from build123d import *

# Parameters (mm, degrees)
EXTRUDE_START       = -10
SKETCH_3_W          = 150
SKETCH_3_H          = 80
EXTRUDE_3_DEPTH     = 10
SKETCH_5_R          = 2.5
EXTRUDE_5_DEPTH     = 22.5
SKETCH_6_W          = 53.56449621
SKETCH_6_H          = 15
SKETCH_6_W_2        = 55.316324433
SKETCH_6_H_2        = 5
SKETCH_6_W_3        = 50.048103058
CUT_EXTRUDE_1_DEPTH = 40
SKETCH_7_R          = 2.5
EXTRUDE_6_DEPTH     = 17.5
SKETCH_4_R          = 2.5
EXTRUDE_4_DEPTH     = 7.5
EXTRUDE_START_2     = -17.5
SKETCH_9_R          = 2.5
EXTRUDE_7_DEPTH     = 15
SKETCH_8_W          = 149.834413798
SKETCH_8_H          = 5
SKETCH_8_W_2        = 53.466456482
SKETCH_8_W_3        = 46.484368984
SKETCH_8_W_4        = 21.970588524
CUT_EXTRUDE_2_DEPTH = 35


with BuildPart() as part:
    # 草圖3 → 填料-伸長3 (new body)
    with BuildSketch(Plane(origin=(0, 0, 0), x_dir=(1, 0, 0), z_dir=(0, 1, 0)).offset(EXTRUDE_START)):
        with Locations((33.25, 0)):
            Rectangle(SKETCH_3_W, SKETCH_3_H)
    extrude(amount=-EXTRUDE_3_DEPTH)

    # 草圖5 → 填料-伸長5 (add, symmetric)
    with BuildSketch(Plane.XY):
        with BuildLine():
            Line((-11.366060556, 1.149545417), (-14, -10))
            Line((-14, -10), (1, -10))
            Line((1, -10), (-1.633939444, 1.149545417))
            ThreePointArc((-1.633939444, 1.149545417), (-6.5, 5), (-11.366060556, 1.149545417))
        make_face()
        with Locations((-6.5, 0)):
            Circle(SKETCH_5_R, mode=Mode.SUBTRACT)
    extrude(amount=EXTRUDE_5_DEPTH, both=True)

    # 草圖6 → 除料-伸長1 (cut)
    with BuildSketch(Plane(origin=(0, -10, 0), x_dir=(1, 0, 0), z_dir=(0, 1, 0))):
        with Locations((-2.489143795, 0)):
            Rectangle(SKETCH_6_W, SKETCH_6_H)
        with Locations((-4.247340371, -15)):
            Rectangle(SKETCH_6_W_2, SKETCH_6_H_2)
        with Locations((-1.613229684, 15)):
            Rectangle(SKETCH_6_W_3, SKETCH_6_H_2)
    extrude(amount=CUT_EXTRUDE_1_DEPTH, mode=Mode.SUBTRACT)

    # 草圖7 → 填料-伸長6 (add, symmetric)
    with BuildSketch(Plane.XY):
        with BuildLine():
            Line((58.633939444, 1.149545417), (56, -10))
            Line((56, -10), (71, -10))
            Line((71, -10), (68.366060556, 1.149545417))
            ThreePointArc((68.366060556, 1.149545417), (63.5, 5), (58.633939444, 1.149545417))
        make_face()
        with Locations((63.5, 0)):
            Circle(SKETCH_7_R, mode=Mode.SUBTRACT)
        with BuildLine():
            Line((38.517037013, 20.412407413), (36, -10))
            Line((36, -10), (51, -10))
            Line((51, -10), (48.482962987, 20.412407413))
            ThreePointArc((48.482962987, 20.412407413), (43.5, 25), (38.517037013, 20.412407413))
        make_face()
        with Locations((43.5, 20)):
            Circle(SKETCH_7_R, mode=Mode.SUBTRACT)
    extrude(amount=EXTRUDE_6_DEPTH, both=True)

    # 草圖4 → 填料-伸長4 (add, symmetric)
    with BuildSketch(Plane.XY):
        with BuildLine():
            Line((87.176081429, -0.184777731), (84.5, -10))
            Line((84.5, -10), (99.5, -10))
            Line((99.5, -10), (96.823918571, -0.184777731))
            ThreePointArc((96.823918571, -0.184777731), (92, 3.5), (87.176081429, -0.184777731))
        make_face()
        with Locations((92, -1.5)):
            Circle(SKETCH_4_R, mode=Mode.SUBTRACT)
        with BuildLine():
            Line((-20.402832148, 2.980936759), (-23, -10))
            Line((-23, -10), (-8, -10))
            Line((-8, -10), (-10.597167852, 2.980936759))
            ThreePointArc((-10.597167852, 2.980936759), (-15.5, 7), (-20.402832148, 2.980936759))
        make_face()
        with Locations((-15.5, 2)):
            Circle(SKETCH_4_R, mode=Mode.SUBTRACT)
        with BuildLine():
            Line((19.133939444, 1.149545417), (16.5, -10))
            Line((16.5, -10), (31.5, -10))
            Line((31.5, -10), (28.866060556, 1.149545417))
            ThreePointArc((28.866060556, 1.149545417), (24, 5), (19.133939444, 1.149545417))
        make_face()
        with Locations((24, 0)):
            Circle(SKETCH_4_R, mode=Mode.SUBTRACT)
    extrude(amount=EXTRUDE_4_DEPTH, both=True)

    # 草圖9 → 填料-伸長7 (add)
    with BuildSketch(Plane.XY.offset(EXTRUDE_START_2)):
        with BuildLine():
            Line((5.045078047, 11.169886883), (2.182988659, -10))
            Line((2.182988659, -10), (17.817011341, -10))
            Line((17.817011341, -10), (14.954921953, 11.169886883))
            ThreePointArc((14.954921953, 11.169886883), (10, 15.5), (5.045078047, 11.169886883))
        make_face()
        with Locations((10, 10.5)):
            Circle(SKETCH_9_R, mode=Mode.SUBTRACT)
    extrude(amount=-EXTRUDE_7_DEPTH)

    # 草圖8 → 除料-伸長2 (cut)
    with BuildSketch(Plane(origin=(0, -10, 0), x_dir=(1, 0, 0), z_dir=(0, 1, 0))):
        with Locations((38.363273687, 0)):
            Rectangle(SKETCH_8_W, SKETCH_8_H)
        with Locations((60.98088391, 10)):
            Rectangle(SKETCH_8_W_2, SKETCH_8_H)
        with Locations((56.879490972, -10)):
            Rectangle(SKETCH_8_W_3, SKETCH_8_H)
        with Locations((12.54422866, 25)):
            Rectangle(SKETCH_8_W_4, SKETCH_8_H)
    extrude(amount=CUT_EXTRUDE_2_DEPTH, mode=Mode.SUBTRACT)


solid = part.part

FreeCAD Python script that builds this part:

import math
import FreeCAD as App
import Part
import Sketcher
from FreeCAD import Vector
Q = App.Units.Quantity


def add_polygon(sketch, points):
    """Adds a closed chain of lines whose ends are joined by coincident constraints."""
    first, n = sketch.GeometryCount, len(points)
    for a, b in zip(points, points[1:] + points[:1]):
        sketch.addGeometry(Part.LineSegment(App.Vector(*a, 0), App.Vector(*b, 0)), False)
    for i in range(n):
        sketch.addConstraint(Sketcher.Constraint("Coincident", first + i, 2, first + (i + 1) % n, 1))

doc = App.newDocument("Part")
body = doc.addObject("PartDesign::Body", "Body")

# Sketch on XZ plane
sketch1 = body.newObject("Sketcher::SketchObject", "Sketch")
sketch1.AttachmentSupport = (doc.getObject("XZ_Plane"), [""])
sketch1.MapMode = "FlatFace"
sketch1.AttachmentOffset = App.Placement(Vector(0, 0, 10), App.Rotation())
add_polygon(sketch1, [(-42, -40), (-42, 40), (108, 40), (108, -40)])  # lines 0-3
sketch1.addConstraint([
    Sketcher.Constraint("Vertical", 0),
    Sketcher.Constraint("Horizontal", 1),
    Sketcher.Constraint("Vertical", 2),
    Sketcher.Constraint("Horizontal", 3),
    Sketcher.Constraint("DistanceX", 1, 1, 1, 2, Q("150 mm")),
    Sketcher.Constraint("DistanceY", 0, 1, 0, 2, Q("80 mm")),
    Sketcher.Constraint("DistanceY", -1, 1, 0, 2, Q("40 mm")),
    Sketcher.Constraint("DistanceX", 0, 2, -1, 1, Q("41.75 mm")),
])
pad1 = body.newObject("PartDesign::Pad", "Pad")
pad1.Profile = sketch1
pad1.Length = 10

# Sketch on XY plane
sketch2 = body.newObject("Sketcher::SketchObject", "Sketch001")
sketch2.AttachmentSupport = (doc.getObject("XY_Plane"), [""])
sketch2.MapMode = "FlatFace"
sketch2.addGeometry([
    Part.LineSegment(Vector(-11.4, 1.1, 0), Vector(-14, -10, 0)),  # 0
    Part.LineSegment(Vector(-14, -10, 0), Vector(1, -10, 0)),  # 1
    Part.LineSegment(Vector(1, -10, 0), Vector(-1.6, 1.1, 0)),  # 2
    Part.ArcOfCircle(Part.Circle(Vector(-6.5, 0, 0), Vector(0, 0, 1), 5), math.radians(13), math.radians(167)),  # 3
    Part.Circle(Vector(-6.5, 0, 0), Vector(0, 0, 1), 2.5),  # 4
], False)
sketch2.addConstraint([
    Sketcher.Constraint("Coincident", 0, 2, 1, 1),
    Sketcher.Constraint("Coincident", 1, 2, 2, 1),
    Sketcher.Constraint("Tangent", 2, 2, 3, 1),
    Sketcher.Constraint("Tangent", 3, 2, 0, 1),
    Sketcher.Constraint("Horizontal", 1),
    Sketcher.Constraint("Coincident", 4, 3, 3, 3),
    Sketcher.Constraint("PointOnObject", 3, 3, -1),
    Sketcher.Constraint("Horizontal", 2, 2, 3, 2),
    Sketcher.Constraint("Diameter", 4, Q("5 mm")),
    Sketcher.Constraint("Radius", 3, Q("5 mm")),
    Sketcher.Constraint("DistanceX", 1, 1, 1, 2, Q("15 mm")),
    Sketcher.Constraint("DistanceX", 0, 2, -1, 1, Q("14 mm")),
    Sketcher.Constraint("DistanceY", 0, 2, -1, 1, Q("10 mm")),
])
pad2 = body.newObject("PartDesign::Pad", "Pad001")
pad2.Profile = sketch2
pad2.Length = 45
pad2.Midplane = True

# Sketch on XZ plane
sketch3 = body.newObject("Sketcher::SketchObject", "Sketch002")
sketch3.AttachmentSupport = (doc.getObject("XZ_Plane"), [""])
sketch3.MapMode = "FlatFace"
sketch3.AttachmentOffset = App.Placement(Vector(0, 0, 10), App.Rotation())
add_polygon(sketch3, [(-29, -8), (-29, 8), (24, 8), (24, -8)])  # lines 0-3
add_polygon(sketch3, [(-32, 12), (-32, 18), (23, 18), (23, 12)])  # lines 4-7
add_polygon(sketch3, [(-27, -18), (-27, -12), (23, -12), (23, -18)])  # lines 8-11
sketch3.addConstraint([
    Sketcher.Constraint("Vertical", 0),
    Sketcher.Constraint("Horizontal", 1),
    Sketcher.Constraint("Vertical", 2),
    Sketcher.Constraint("Horizontal", 3),
    Sketcher.Constraint("Vertical", 4),
    Sketcher.Constraint("Horizontal", 5),
    Sketcher.Constraint("Vertical", 6),
    Sketcher.Constraint("Horizontal", 7),
    Sketcher.Constraint("Vertical", 8),
    Sketcher.Constraint("Horizontal", 9),
    Sketcher.Constraint("Vertical", 10),
    Sketcher.Constraint("Horizontal", 11),
    Sketcher.Constraint("Symmetric", 6, 2, 9, 2, -1),
    Sketcher.Constraint("Equal", 6, 8),
    Sketcher.Constraint("DistanceY", 0, 1, 0, 2, Q("15 mm")),
    Sketcher.Constraint("DistanceY", 4, 1, 4, 2, Q("5 mm")),
    Sketcher.Constraint("DistanceY", 0, 2, 4, 2, Q("10 mm")),
    Sketcher.Constraint("DistanceY", 8, 2, 3, 2, Q("5 mm")),
    Sketcher.Constraint("DistanceX", 1, 1, 1, 2, Q("53.564496 mm")),
    Sketcher.Constraint("DistanceX", 5, 1, 5, 2, Q("55.316324 mm")),
    Sketcher.Constraint("DistanceX", 9, 1, 9, 2, Q("50.048103 mm")),
    Sketcher.Constraint("DistanceX", 0, 2, -1, 1, Q("29.271392 mm")),
    Sketcher.Constraint("DistanceX", -1, 1, 5, 2, Q("23.410822 mm")),
])
pocket1 = body.newObject("PartDesign::Pocket", "Pocket")
pocket1.Profile = sketch3
pocket1.Length = 40

# Sketch on XY plane
sketch4 = body.newObject("Sketcher::SketchObject", "Sketch003")
sketch4.AttachmentSupport = (doc.getObject("XY_Plane"), [""])
sketch4.MapMode = "FlatFace"
sketch4.addGeometry([
    Part.LineSegment(Vector(58.6, 1.1, 0), Vector(56, -10, 0)),  # 0
    Part.LineSegment(Vector(56, -10, 0), Vector(71, -10, 0)),  # 1
    Part.LineSegment(Vector(71, -10, 0), Vector(68.4, 1.1, 0)),  # 2
    Part.ArcOfCircle(Part.Circle(Vector(63.5, 0, 0), Vector(0, 0, 1), 5), math.radians(13), math.radians(167)),  # 3
    Part.Circle(Vector(63.5, 0, 0), Vector(0, 0, 1), 2.5),  # 4
    Part.LineSegment(Vector(38.5, 20.4, 0), Vector(36, -10, 0)),  # 5
    Part.LineSegment(Vector(36, -10, 0), Vector(51, -10, 0)),  # 6
    Part.LineSegment(Vector(51, -10, 0), Vector(48.5, 20.4, 0)),  # 7
    Part.ArcOfCircle(Part.Circle(Vector(43.5, 20, 0), Vector(0, 0, 1), 5), math.radians(5), math.radians(175)),  # 8
    Part.Circle(Vector(43.5, 20, 0), Vector(0, 0, 1), 2.5),  # 9
], False)
sketch4.addConstraint([
    Sketcher.Constraint("Coincident", 0, 2, 1, 1),
    Sketcher.Constraint("Coincident", 1, 2, 2, 1),
    Sketcher.Constraint("Tangent", 2, 2, 3, 1),
    Sketcher.Constraint("Tangent", 3, 2, 0, 1),
    Sketcher.Constraint("Coincident", 5, 2, 6, 1),
    Sketcher.Constraint("Coincident", 6, 2, 7, 1),
    Sketcher.Constraint("Tangent", 7, 2, 8, 1),
    Sketcher.Constraint("Tangent", 8, 2, 5, 1),
    Sketcher.Constraint("Horizontal", 1),
    Sketcher.Constraint("Horizontal", 6),
    Sketcher.Constraint("Coincident", 4, 3, 3, 3),
    Sketcher.Constraint("Coincident", 9, 3, 8, 3),
    Sketcher.Constraint("Equal", 3, 8),
    Sketcher.Constraint("Equal", 4, 9),
    Sketcher.Constraint("PointOnObject", 3, 3, -1),
    Sketcher.Constraint("Horizontal", 2, 2, 3, 2),
    Sketcher.Constraint("Horizontal", 1, 2, 5, 2),
    Sketcher.Constraint("Horizontal", 7, 2, 8, 2),
    Sketcher.Constraint("Equal", 1, 6),
    Sketcher.Constraint("Diameter", 4, Q("5 mm")),
    Sketcher.Constraint("Radius", 3, Q("5 mm")),
    Sketcher.Constraint("DistanceX", 1, 1, 1, 2, Q("15 mm")),
    Sketcher.Constraint("DistanceY", -1, 1, 8, 3, Q("20 mm")),
    Sketcher.Constraint("DistanceX", -1, 1, 0, 2, Q("56 mm")),
    Sketcher.Constraint("DistanceY", 0, 2, -1, 1, Q("10 mm")),
    Sketcher.Constraint("DistanceX", -1, 1, 5, 2, Q("36 mm")),
])
pad3 = body.newObject("PartDesign::Pad", "Pad002")
pad3.Profile = sketch4
pad3.Length = 35
pad3.Midplane = True

# Sketch on XY plane
sketch5 = body.newObject("Sketcher::SketchObject", "Sketch004")
sketch5.AttachmentSupport = (doc.getObject("XY_Plane"), [""])
sketch5.MapMode = "FlatFace"
sketch5.addGeometry([
    Part.LineSegment(Vector(87.2, -0.2, 0), Vector(84.5, -10, 0)),  # 0
    Part.LineSegment(Vector(84.5, -10, 0), Vector(99.5, -10, 0)),  # 1
    Part.LineSegment(Vector(99.5, -10, 0), Vector(96.8, -0.2, 0)),  # 2
    Part.ArcOfCircle(Part.Circle(Vector(92, -1.5, 0), Vector(0, 0, 1), 5), math.radians(15), math.radians(165)),  # 3
    Part.Circle(Vector(92, -1.5, 0), Vector(0, 0, 1), 2.5),  # 4
    Part.LineSegment(Vector(-20.4, 3, 0), Vector(-23, -10, 0)),  # 5
    Part.LineSegment(Vector(-23, -10, 0), Vector(-8, -10, 0)),  # 6
    Part.LineSegment(Vector(-8, -10, 0), Vector(-10.6, 3, 0)),  # 7
    Part.ArcOfCircle(Part.Circle(Vector(-15.5, 2, 0), Vector(0, 0, 1), 5), math.radians(11), math.radians(169)),  # 8
    Part.Circle(Vector(-15.5, 2, 0), Vector(0, 0, 1), 2.5),  # 9
    Part.LineSegment(Vector(19.1, 1.1, 0), Vector(16.5, -10, 0)),  # 10
    Part.LineSegment(Vector(16.5, -10, 0), Vector(31.5, -10, 0)),  # 11
    Part.LineSegment(Vector(31.5, -10, 0), Vector(28.9, 1.1, 0)),  # 12
    Part.ArcOfCircle(Part.Circle(Vector(24, 0, 0), Vector(0, 0, 1), 5), math.radians(13), math.radians(167)),  # 13
    Part.Circle(Vector(24, 0, 0), Vector(0, 0, 1), 2.5),  # 14
], False)
sketch5.addConstraint([
    Sketcher.Constraint("Coincident", 0, 2, 1, 1),
    Sketcher.Constraint("Coincident", 1, 2, 2, 1),
    Sketcher.Constraint("Tangent", 2, 2, 3, 1),
    Sketcher.Constraint("Tangent", 3, 2, 0, 1),
    Sketcher.Constraint("Coincident", 5, 2, 6, 1),
    Sketcher.Constraint("Coincident", 6, 2, 7, 1),
    Sketcher.Constraint("Tangent", 7, 2, 8, 1),
    Sketcher.Constraint("Tangent", 8, 2, 5, 1),
    Sketcher.Constraint("Coincident", 10, 2, 11, 1),
    Sketcher.Constraint("Coincident", 11, 2, 12, 1),
    Sketcher.Constraint("Tangent", 12, 2, 13, 1),
    Sketcher.Constraint("Tangent", 13, 2, 10, 1),
    Sketcher.Constraint("Horizontal", 1),
    Sketcher.Constraint("Horizontal", 6),
    Sketcher.Constraint("Horizontal", 11),
    Sketcher.Constraint("Coincident", 4, 3, 3, 3),
    Sketcher.Constraint("Coincident", 9, 3, 8, 3),
    Sketcher.Constraint("Coincident", 14, 3, 13, 3),
    Sketcher.Constraint("Equal", 3, 8),
    Sketcher.Constraint("Equal", 4, 9),
    Sketcher.Constraint("Equal", 8, 13),
    Sketcher.Constraint("Equal", 9, 14),
    Sketcher.Constraint("PointOnObject", 13, 3, -1),
    Sketcher.Constraint("Horizontal", 2, 2, 3, 2),
    Sketcher.Constraint("Horizontal", 1, 2, 5, 2),
    Sketcher.Constraint("Horizontal", 7, 2, 8, 2),
    Sketcher.Constraint("Horizontal", 6, 2, 10, 2),
    Sketcher.Constraint("Horizontal", 12, 2, 13, 2),
    Sketcher.Constraint("Equal", 1, 6),
    Sketcher.Constraint("Equal", 6, 11),
    Sketcher.Constraint("Diameter", 4, Q("5 mm")),
    Sketcher.Constraint("Radius", 3, Q("5 mm")),
    Sketcher.Constraint("DistanceX", 1, 1, 1, 2, Q("15 mm")),
    Sketcher.Constraint("DistanceX", -1, 1, 3, 3, Q("92 mm")),
    Sketcher.Constraint("DistanceY", -1, 1, 8, 3, Q("2 mm")),
    Sketcher.Constraint("DistanceX", -1, 1, 13, 3, Q("24 mm")),
    Sketcher.Constraint("DistanceY", 0, 2, -1, 1, Q("10 mm")),
    Sketcher.Constraint("DistanceX", 5, 2, -1, 1, Q("23 mm")),
    Sketcher.Constraint("DistanceY", 3, 3, -1, 1, Q("1.5 mm")),
])
pad4 = body.newObject("PartDesign::Pad", "Pad003")
pad4.Profile = sketch5
pad4.Length = 15
pad4.Midplane = True

# Sketch on XY plane
sketch6 = body.newObject("Sketcher::SketchObject", "Sketch005")
sketch6.AttachmentSupport = (doc.getObject("XY_Plane"), [""])
sketch6.MapMode = "FlatFace"
sketch6.AttachmentOffset = App.Placement(Vector(0, 0, -17.5), App.Rotation())
sketch6.addGeometry([
    Part.LineSegment(Vector(5, 11.2, 0), Vector(2.2, -10, 0)),  # 0
    Part.LineSegment(Vector(2.2, -10, 0), Vector(17.8, -10, 0)),  # 1
    Part.LineSegment(Vector(17.8, -10, 0), Vector(15, 11.2, 0)),  # 2
    Part.ArcOfCircle(Part.Circle(Vector(10, 10.5, 0), Vector(0, 0, 1), 5), math.radians(8), math.radians(172)),  # 3
    Part.Circle(Vector(10, 10.5, 0), Vector(0, 0, 1), 2.5),  # 4
], False)
sketch6.addConstraint([
    Sketcher.Constraint("Coincident", 0, 2, 1, 1),
    Sketcher.Constraint("Coincident", 1, 2, 2, 1),
    Sketcher.Constraint("Tangent", 2, 2, 3, 1),
    Sketcher.Constraint("Tangent", 3, 2, 0, 1),
    Sketcher.Constraint("Horizontal", 1),
    Sketcher.Constraint("Coincident", 4, 3, 3, 3),
    Sketcher.Constraint("Horizontal", 2, 2, 3, 2),
    Sketcher.Constraint("Diameter", 4, Q("5 mm")),
    Sketcher.Constraint("Radius", 3, Q("5 mm")),
    Sketcher.Constraint("DistanceX", -1, 1, 3, 3, Q("10 mm")),
    Sketcher.Constraint("DistanceY", 0, 2, -1, 1, Q("10 mm")),
    Sketcher.Constraint("DistanceY", -1, 1, 3, 3, Q("10.5 mm")),
    Sketcher.Constraint("DistanceX", 1, 1, 1, 2, Q("15.634023 mm")),
])
pad5 = body.newObject("PartDesign::Pad", "Pad004")
pad5.Profile = sketch6
pad5.Length = 15
pad5.Reversed = True

# Sketch on XZ plane
sketch7 = body.newObject("Sketcher::SketchObject", "Sketch006")
sketch7.AttachmentSupport = (doc.getObject("XZ_Plane"), [""])
sketch7.MapMode = "FlatFace"
sketch7.AttachmentOffset = App.Placement(Vector(0, 0, 10), App.Rotation())
add_polygon(sketch7, [(-37, -2), (-37, 2), (113, 2), (113, -2)])  # lines 0-3
add_polygon(sketch7, [(34, -12), (34, -8), (88, -8), (88, -12)])  # lines 4-7
add_polygon(sketch7, [(34, 8), (34, 12), (80, 12), (80, 8)])  # lines 8-11
add_polygon(sketch7, [(2, -28), (2, -22), (24, -22), (24, -28)])  # lines 12-15
sketch7.addConstraint([
    Sketcher.Constraint("Vertical", 0),
    Sketcher.Constraint("Horizontal", 1),
    Sketcher.Constraint("Vertical", 2),
    Sketcher.Constraint("Horizontal", 3),
    Sketcher.Constraint("Vertical", 4),
    Sketcher.Constraint("Horizontal", 5),
    Sketcher.Constraint("Vertical", 6),
    Sketcher.Constraint("Horizontal", 7),
    Sketcher.Constraint("Vertical", 8),
    Sketcher.Constraint("Horizontal", 9),
    Sketcher.Constraint("Vertical", 10),
    Sketcher.Constraint("Horizontal", 11),
    Sketcher.Constraint("Vertical", 12),
    Sketcher.Constraint("Horizontal", 13),
    Sketcher.Constraint("Vertical", 14),
    Sketcher.Constraint("Horizontal", 15),
    Sketcher.Constraint("Equal", 2, 4),
    Sketcher.Constraint("Equal", 6, 8),
    Sketcher.Constraint("Equal", 10, 12),
    Sketcher.Constraint("DistanceY", 0, 1, 0, 2, Q("5 mm")),
    Sketcher.Constraint("DistanceY", 4, 2, 3, 2, Q("5 mm")),
    Sketcher.Constraint("DistanceY", 4, 2, 8, 2, Q("20 mm")),
    Sketcher.Constraint("DistanceY", 12, 2, 7, 2, Q("10 mm")),
    Sketcher.Constraint("DistanceY", -1, 1, 0, 2, Q("2.5 mm")),
    Sketcher.Constraint("DistanceX", 9, 1, 9, 2, Q("46.484369 mm")),
    Sketcher.Constraint("DistanceX", 13, 1, 13, 2, Q("21.970589 mm")),
    Sketcher.Constraint("DistanceX", 1, 1, 1, 2, Q("149.834414 mm")),
    Sketcher.Constraint("DistanceX", 5, 1, 5, 2, Q("53.466456 mm")),
    Sketcher.Constraint("DistanceX", -1, 1, 1, 2, Q("113.280481 mm")),
    Sketcher.Constraint("DistanceX", 3, 2, 4, 2, Q("70.801589 mm")),
    Sketcher.Constraint("DistanceX", 8, 2, 4, 2, Q("0.610349 mm")),
    Sketcher.Constraint("DistanceX", 12, 2, 7, 2, Q("32.688721 mm")),
])
pocket2 = body.newObject("PartDesign::Pocket", "Pocket001")
pocket2.Profile = sketch7
pocket2.Length = 35

doc.recompute()
